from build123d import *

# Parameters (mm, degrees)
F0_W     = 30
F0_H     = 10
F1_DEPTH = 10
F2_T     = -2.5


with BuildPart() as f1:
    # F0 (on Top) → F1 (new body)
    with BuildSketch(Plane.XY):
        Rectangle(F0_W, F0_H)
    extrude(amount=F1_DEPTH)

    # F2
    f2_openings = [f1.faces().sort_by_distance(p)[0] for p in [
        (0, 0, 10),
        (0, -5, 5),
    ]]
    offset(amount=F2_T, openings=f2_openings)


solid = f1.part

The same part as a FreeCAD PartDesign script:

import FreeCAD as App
import Part
import Sketcher
from FreeCAD import Vector


def faces_at(feature, points):
    """Names of the faces that lie closest to the given points."""
    faces = feature.Shape.Faces
    near = lambda p: min(range(len(faces)), key=lambda i: faces[i].distToShape(Part.Vertex(*p))[0])
    return sorted({f"Face{near(p) + 1}" for p in points})


def add_polygon(sketch, points):
    """Adds a closed chain of lines whose ends are joined by coincident constraints."""
    first, n = sketch.GeometryCount, len(points)
    for a, b in zip(points, points[1:] + points[:1]):
        sketch.addGeometry(Part.LineSegment(App.Vector(*a, 0), App.Vector(*b, 0)), False)
    for i in range(n):
        sketch.addConstraint(Sketcher.Constraint("Coincident", first + i, 2, first + (i + 1) % n, 1))

doc = App.newDocument("Part")
body = doc.addObject("PartDesign::Body", "Body")

sketch1 = doc.addObject("Sketcher::SketchObject", "Sketch")
body.addObject(sketch1)
sketch1.AttachmentSupport = (doc.XY_Plane, [""])
sketch1.MapMode = "FlatFace"
add_polygon(sketch1, [(-15, 5), (-15, -5), (15, -5), (15, 5)])
sketch1.addConstraint([
    Sketcher.Constraint("Vertical", 0),
    Sketcher.Constraint("Horizontal", 1),
    Sketcher.Constraint("Vertical", 2),
    Sketcher.Constraint("Horizontal", 3),
    Sketcher.Constraint("Symmetric", 0, 2, 2, 2, -1, 1),
    Sketcher.Constraint("DistanceX", 1, 1, 1, 2, 30.0),
    Sketcher.Constraint("DistanceY", 0, 2, 0, 1, 10.0),
])
pad1 = doc.addObject("PartDesign::Pad", "Pad")
body.addObject(pad1)
pad1.Profile = sketch1
pad1.Length = 10
doc.recompute()

thickness = doc.addObject("PartDesign::Thickness", "Thickness")
body.addObject(thickness)
thickness.Base = (pad1, faces_at(pad1, [(0, 0, 10), (0, -5, 5)]))
thickness.Value = 2.5
thickness.Reversed = True
thickness.Join = "Arc"

doc.recompute()
